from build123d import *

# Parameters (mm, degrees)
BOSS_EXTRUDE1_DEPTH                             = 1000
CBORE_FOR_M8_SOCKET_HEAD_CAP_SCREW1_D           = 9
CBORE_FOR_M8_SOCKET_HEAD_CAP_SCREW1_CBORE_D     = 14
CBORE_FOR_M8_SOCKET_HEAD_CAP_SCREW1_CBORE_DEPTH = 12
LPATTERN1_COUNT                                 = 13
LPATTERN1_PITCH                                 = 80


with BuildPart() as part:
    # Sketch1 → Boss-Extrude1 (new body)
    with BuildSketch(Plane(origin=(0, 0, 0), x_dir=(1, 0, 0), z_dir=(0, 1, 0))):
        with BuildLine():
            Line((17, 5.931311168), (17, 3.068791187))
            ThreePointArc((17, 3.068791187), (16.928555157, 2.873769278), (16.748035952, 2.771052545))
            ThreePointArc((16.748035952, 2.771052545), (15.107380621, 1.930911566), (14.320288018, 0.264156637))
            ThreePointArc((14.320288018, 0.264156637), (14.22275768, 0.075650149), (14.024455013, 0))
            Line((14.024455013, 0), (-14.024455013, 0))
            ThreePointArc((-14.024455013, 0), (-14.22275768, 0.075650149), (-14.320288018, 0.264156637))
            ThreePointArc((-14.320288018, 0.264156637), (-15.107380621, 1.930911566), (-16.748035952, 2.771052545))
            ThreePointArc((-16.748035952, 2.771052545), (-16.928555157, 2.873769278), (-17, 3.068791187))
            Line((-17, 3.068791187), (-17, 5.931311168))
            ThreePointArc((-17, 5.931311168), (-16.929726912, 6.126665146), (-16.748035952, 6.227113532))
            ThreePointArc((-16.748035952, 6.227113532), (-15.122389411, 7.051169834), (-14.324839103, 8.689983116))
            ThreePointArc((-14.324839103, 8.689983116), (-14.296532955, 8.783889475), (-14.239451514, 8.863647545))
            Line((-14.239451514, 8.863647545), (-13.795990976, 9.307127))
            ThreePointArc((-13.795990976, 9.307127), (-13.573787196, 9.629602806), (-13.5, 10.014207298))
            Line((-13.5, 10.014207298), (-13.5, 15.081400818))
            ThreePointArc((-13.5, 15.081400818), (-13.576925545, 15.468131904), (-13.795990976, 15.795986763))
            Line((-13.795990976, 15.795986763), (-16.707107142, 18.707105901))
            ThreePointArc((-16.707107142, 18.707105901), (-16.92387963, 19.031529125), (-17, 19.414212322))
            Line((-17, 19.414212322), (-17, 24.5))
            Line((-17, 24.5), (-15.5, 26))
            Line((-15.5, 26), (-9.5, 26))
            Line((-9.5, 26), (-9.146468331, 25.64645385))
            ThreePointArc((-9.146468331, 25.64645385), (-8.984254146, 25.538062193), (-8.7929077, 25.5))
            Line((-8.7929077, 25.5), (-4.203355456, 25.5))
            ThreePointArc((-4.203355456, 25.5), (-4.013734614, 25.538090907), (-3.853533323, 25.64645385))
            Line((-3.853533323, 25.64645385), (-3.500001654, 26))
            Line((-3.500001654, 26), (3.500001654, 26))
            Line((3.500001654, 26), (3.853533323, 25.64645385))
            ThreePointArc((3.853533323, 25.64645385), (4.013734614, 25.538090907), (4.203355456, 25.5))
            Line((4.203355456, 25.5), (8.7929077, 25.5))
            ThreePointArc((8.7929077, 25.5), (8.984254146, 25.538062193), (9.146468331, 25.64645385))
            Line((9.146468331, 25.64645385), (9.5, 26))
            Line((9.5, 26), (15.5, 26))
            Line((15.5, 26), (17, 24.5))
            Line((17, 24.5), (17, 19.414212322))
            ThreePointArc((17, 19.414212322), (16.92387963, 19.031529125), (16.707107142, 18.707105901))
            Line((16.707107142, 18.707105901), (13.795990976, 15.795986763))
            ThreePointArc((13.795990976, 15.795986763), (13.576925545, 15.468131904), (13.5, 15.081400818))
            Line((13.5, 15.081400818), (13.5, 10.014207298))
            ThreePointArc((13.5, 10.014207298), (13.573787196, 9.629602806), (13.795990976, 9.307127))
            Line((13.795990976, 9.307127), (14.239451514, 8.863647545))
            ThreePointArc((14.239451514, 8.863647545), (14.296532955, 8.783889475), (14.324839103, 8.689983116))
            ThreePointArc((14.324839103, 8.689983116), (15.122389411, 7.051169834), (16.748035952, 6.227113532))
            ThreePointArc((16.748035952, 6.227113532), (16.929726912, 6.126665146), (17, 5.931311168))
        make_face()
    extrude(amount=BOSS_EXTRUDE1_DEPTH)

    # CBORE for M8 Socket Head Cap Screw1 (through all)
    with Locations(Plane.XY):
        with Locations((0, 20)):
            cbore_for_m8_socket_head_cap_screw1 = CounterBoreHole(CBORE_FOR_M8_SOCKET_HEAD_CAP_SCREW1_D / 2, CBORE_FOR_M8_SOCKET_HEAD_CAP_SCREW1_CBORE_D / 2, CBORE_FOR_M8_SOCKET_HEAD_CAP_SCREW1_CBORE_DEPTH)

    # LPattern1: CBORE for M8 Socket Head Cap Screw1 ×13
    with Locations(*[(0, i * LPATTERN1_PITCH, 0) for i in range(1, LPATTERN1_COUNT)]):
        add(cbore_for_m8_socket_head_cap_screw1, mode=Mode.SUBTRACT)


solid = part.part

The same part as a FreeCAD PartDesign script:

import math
import FreeCAD as App
import Part
import Sketcher

V = App.Vector
Q = App.Units.Quantity

doc = App.newDocument("Part")
body = doc.addObject("PartDesign::Body", "Body")

sketch1 = body.newObject("Sketcher::SketchObject", "Sketch")
sketch1.AttachmentSupport = (doc.getObject("XZ_Plane"), [""])
sketch1.MapMode = "FlatFace"
sketch1.addGeometry(Part.LineSegment(V(17, -3.068791, 0), V(17, -5.931311, 0)), False)
sketch1.addGeometry(Part.ArcOfCircle(Part.Circle(V(16.705542, -5.935704, 0), V(0, 0, 1), 0.294491), math.radians(-81.703405), math.radians(0.854782)), False)
sketch1.addGeometry(Part.ArcOfCircle(Part.Circle(V(17.16064, -9.056587, 0), V(0, 0, 1), 2.859399), math.radians(98.296595), math.radians(172.633818)), False)
sketch1.addGeometry(Part.ArcOfCircle(Part.Circle(V(14.027315, -8.65152, 0), V(0, 0, 1), 0.3), math.radians(-44.998765), math.radians(-7.36622)), False)
sketch1.addGeometry(Part.LineSegment(V(14.239452, -8.863648, 0), V(13.795991, -9.307127, 0)), False)
sketch1.addGeometry(Part.ArcOfCircle(Part.Circle(V(14.453052, -9.997672, 0), V(0, 0, 1), 0.953196), math.radians(133.576671), math.radians(180.99397)), False)
sketch1.addGeometry(Part.LineSegment(V(13.5, -10.014207, 0), V(13.5, -15.081401, 0)), False)
sketch1.addGeometry(Part.ArcOfCircle(Part.Circle(V(14.510578, -15.081401, 0), V(0, 0, 1), 1.010578), math.radians(-180), math.radians(-135.000029)), False)
sketch1.addGeometry(Part.LineSegment(V(13.795991, -15.795987, 0), V(16.707107, -18.707106, 0)), False)
sketch1.addGeometry(Part.ArcOfCircle(Part.Circle(V(16, -19.414212, 0), V(0, 0, 1), 1), math.radians(0), math.radians(44.999971)), False)
sketch1.addGeometry(Part.LineSegment(V(17, -19.414212, 0), V(17, -24.5, 0)), False)
sketch1.addGeometry(Part.LineSegment(V(17, -24.5, 0), V(15.5, -26, 0)), False)
sketch1.addGeometry(Part.LineSegment(V(15.5, -26, 0), V(9.5, -26, 0)), False)
sketch1.addGeometry(Part.LineSegment(V(9.5, -26, 0), V(9.146468, -25.646454, 0)), False)
sketch1.addGeometry(Part.ArcOfCircle(Part.Circle(V(8.792908, -26, 0), V(0, 0, 1), 0.5), math.radians(44.998827), math.radians(90)), False)
sketch1.addGeometry(Part.LineSegment(V(8.792908, -25.5, 0), V(4.203355, -25.5, 0)), False)
sketch1.addGeometry(Part.ArcOfCircle(Part.Circle(V(4.203355, -25.991022, 0), V(0, 0, 1), 0.491022), math.radians(90), math.radians(135.433474)), False)
sketch1.addGeometry(Part.LineSegment(V(3.853533, -25.646454, 0), V(3.500002, -26, 0)), False)
sketch1.addGeometry(Part.LineSegment(V(3.500002, -26, 0), V(-3.500002, -26, 0)), False)
sketch1.addGeometry(Part.LineSegment(V(-3.500002, -26, 0), V(-3.853533, -25.646454, 0)), False)
sketch1.addGeometry(Part.ArcOfCircle(Part.Circle(V(-4.203355, -25.991022, 0), V(0, 0, 1), 0.491022), math.radians(44.566526), math.radians(90)), False)
sketch1.addGeometry(Part.LineSegment(V(-4.203355, -25.5, 0), V(-8.792908, -25.5, 0)), False)
sketch1.addGeometry(Part.ArcOfCircle(Part.Circle(V(-8.792908, -26, 0), V(0, 0, 1), 0.5), math.radians(90), math.radians(135.001173)), False)
sketch1.addGeometry(Part.LineSegment(V(-9.146468, -25.646454, 0), V(-9.5, -26, 0)), False)
sketch1.addGeometry(Part.LineSegment(V(-9.5, -26, 0), V(-15.5, -26, 0)), False)
sketch1.addGeometry(Part.LineSegment(V(-15.5, -26, 0), V(-17, -24.5, 0)), False)
sketch1.addGeometry(Part.LineSegment(V(-17, -24.5, 0), V(-17, -19.414212, 0)), False)
sketch1.addGeometry(Part.ArcOfCircle(Part.Circle(V(-16, -19.414212, 0), V(0, 0, 1), 1), math.radians(135.000029), math.radians(180)), False)
sketch1.addGeometry(Part.LineSegment(V(-16.707107, -18.707106, 0), V(-13.795991, -15.795987, 0)), False)
sketch1.addGeometry(Part.ArcOfCircle(Part.Circle(V(-14.510578, -15.081401, 0), V(0, 0, 1), 1.010578), math.radians(-44.999971), math.radians(0)), False)
sketch1.addGeometry(Part.LineSegment(V(-13.5, -15.081401, 0), V(-13.5, -10.014207, 0)), False)
sketch1.addGeometry(Part.ArcOfCircle(Part.Circle(V(-14.453052, -9.997672, 0), V(0, 0, 1), 0.953196), math.radians(-0.99397), math.radians(46.423329)), False)
sketch1.addGeometry(Part.LineSegment(V(-13.795991, -9.307127, 0), V(-14.239452, -8.863648, 0)), False)
sketch1.addGeometry(Part.ArcOfCircle(Part.Circle(V(-14.027315, -8.65152, 0), V(0, 0, 1), 0.3), math.radians(-172.63378), math.radians(-135.001235)), False)
sketch1.addGeometry(Part.ArcOfCircle(Part.Circle(V(-17.16064, -9.056587, 0), V(0, 0, 1), 2.859399), math.radians(7.366182), math.radians(81.703405)), False)
sketch1.addGeometry(Part.ArcOfCircle(Part.Circle(V(-16.705542, -5.935704, 0), V(0, 0, 1), 0.294491), math.radians(179.145218), math.radians(261.703405)), False)
sketch1.addGeometry(Part.LineSegment(V(-17, -5.931311, 0), V(-17, -3.068791, 0)), False)
sketch1.addGeometry(Part.ArcOfCircle(Part.Circle(V(-16.698103, -3.068791, 0), V(0, 0, 1), 0.301897), math.radians(99.520252), math.radians(180)), False)
sketch1.addGeometry(Part.ArcOfCircle(Part.Circle(V(-17.161447, 0.058303, 0), V(0, 0, 1), 2.859399), math.radians(-81.687068), math.radians(-6.475128)), False)
sketch1.addGeometry(Part.ArcOfCircle(Part.Circle(V(-14.024455, -0.297733, 0), V(0, 0, 1), 0.297733), math.radians(90.000071), math.radians(173.524844)), False)
sketch1.addGeometry(Part.LineSegment(V(-14.024455, 0, 0), V(14.024455, 0, 0)), False)
sketch1.addGeometry(Part.ArcOfCircle(Part.Circle(V(14.024455, -0.297733, 0), V(0, 0, 1), 0.297733), math.radians(6.475156), math.radians(89.999929)), False)
sketch1.addGeometry(Part.ArcOfCircle(Part.Circle(V(17.161447, 0.058303, 0), V(0, 0, 1), 2.859399), math.radians(-173.524872), math.radians(-98.312932)), False)
sketch1.addGeometry(Part.ArcOfCircle(Part.Circle(V(16.698103, -3.068791, 0), V(0, 0, 1), 0.301897), math.radians(0), math.radians(80.479748)), False)
sketch1.addConstraint(Sketcher.Constraint("Coincident", 0, 2, 1, 2))
sketch1.addConstraint(Sketcher.Constraint("Tangent", 1, 1, 2, 1))
sketch1.addConstraint(Sketcher.Constraint("Tangent", 2, 2, 3, 2))
sketch1.addConstraint(Sketcher.Constraint("Tangent", 3, 1, 4, 1))
sketch1.addConstraint(Sketcher.Constraint("Coincident", 4, 2, 5, 1))
sketch1.addConstraint(Sketcher.Constraint("Coincident", 5, 2, 6, 1))
sketch1.addConstraint(Sketcher.Constraint("Tangent", 6, 2, 7, 1))
sketch1.addConstraint(Sketcher.Constraint("Tangent", 7, 2, 8, 1))
sketch1.addConstraint(Sketcher.Constraint("Tangent", 8, 2, 9, 2))
sketch1.addConstraint(Sketcher.Constraint("Tangent", 9, 1, 10, 1))
sketch1.addConstraint(Sketcher.Constraint("Coincident", 10, 2, 11, 1))
sketch1.addConstraint(Sketcher.Constraint("Coincident", 11, 2, 12, 1))
sketch1.addConstraint(Sketcher.Constraint("Coincident", 12, 2, 13, 1))
sketch1.addConstraint(Sketcher.Constraint("Tangent", 13, 2, 14, 1))
sketch1.addConstraint(Sketcher.Constraint("Tangent", 14, 2, 15, 1))
sketch1.addConstraint(Sketcher.Constraint("Tangent", 15, 2, 16, 1))
sketch1.addConstraint(Sketcher.Constraint("Coincident", 16, 2, 17, 1))
sketch1.addConstraint(Sketcher.Constraint("Coincident", 17, 2, 18, 1))
sketch1.addConstraint(Sketcher.Constraint("Coincident", 18, 2, 19, 1))
sketch1.addConstraint(Sketcher.Constraint("Coincident", 19, 2, 20, 1))
sketch1.addConstraint(Sketcher.Constraint("Tangent", 20, 2, 21, 1))
sketch1.addConstraint(Sketcher.Constraint("Tangent", 21, 2, 22, 1))
sketch1.addConstraint(Sketcher.Constraint("Tangent", 22, 2, 23, 1))
sketch1.addConstraint(Sketcher.Constraint("Coincident", 23, 2, 24, 1))
sketch1.addConstraint(Sketcher.Constraint("Coincident", 24, 2, 25, 1))
sketch1.addConstraint(Sketcher.Constraint("Coincident", 25, 2, 26, 1))
sketch1.addConstraint(Sketcher.Constraint("Tangent", 26, 2, 27, 2))
sketch1.addConstraint(Sketcher.Constraint("Tangent", 27, 1, 28, 1))
sketch1.addConstraint(Sketcher.Constraint("Tangent", 28, 2, 29, 1))
sketch1.addConstraint(Sketcher.Constraint("Tangent", 29, 2, 30, 1))
sketch1.addConstraint(Sketcher.Constraint("Coincident", 30, 2, 31, 1))
sketch1.addConstraint(Sketcher.Constraint("Coincident", 31, 2, 32, 1))
sketch1.addConstraint(Sketcher.Constraint("Tangent", 32, 2, 33, 2))
sketch1.addConstraint(Sketcher.Constraint("Tangent", 33, 1, 34, 1))
sketch1.addConstraint(Sketcher.Constraint("Tangent", 34, 2, 35, 2))
sketch1.addConstraint(Sketcher.Constraint("Coincident", 35, 1, 36, 1))
sketch1.addConstraint(Sketcher.Constraint("Tangent", 36, 2, 37, 2))
sketch1.addConstraint(Sketcher.Constraint("Coincident", 37, 1, 38, 1))
sketch1.addConstraint(Sketcher.Constraint("Tangent", 38, 2, 39, 2))
sketch1.addConstraint(Sketcher.Constraint("Tangent", 39, 1, 40, 1))
sketch1.addConstraint(Sketcher.Constraint("Tangent", 40, 2, 41, 2))
sketch1.addConstraint(Sketcher.Constraint("Tangent", 41, 1, 42, 1))
sketch1.addConstraint(Sketcher.Constraint("Coincident", 42, 2, 43, 2))
sketch1.addConstraint(Sketcher.Constraint("Tangent", 43, 1, 0, 1))
sketch1.addConstraint(Sketcher.Constraint("Vertical", 0))
sketch1.addConstraint(Sketcher.Constraint("Vertical", 6))
sketch1.addConstraint(Sketcher.Constraint("Vertical", 10))
sketch1.addConstraint(Sketcher.Constraint("Horizontal", 12))
sketch1.addConstraint(Sketcher.Constraint("Horizontal", 15))
sketch1.addConstraint(Sketcher.Constraint("Horizontal", 18))
sketch1.addConstraint(Sketcher.Constraint("Horizontal", 21))
sketch1.addConstraint(Sketcher.Constraint("Horizontal", 24))
sketch1.addConstraint(Sketcher.Constraint("Vertical", 26))
sketch1.addConstraint(Sketcher.Constraint("Vertical", 30))
sketch1.addConstraint(Sketcher.Constraint("Vertical", 36))
sketch1.addConstraint(Sketcher.Constraint("Horizontal", 40))
sketch1.addConstraint(Sketcher.Constraint("Equal", 16, 20))
sketch1.addConstraint(Sketcher.Constraint("Equal", 14, 22))
sketch1.addConstraint(Sketcher.Constraint("Equal", 9, 27))
sketch1.addConstraint(Sketcher.Constraint("Equal", 7, 29))
sketch1.addConstraint(Sketcher.Constraint("Equal", 5, 31))
sketch1.addConstraint(Sketcher.Constraint("Equal", 3, 33))
sketch1.addConstraint(Sketcher.Constraint("Equal", 2, 34))
sketch1.addConstraint(Sketcher.Constraint("Equal", 1, 35))
sketch1.addConstraint(Sketcher.Constraint("Equal", 34, 38))
sketch1.addConstraint(Sketcher.Constraint("Equal", 39, 41))
sketch1.addConstraint(Sketcher.Constraint("Equal", 38, 42))
sketch1.addConstraint(Sketcher.Constraint("Equal", 37, 43))
sketch1.addConstraint(Sketcher.Constraint("Symmetric", 39, 1, 40, 2, -1, 1))
sketch1.addConstraint(Sketcher.Constraint("Symmetric", 16, 3, 20, 3, -2))
sketch1.addConstraint(Sketcher.Constraint("Symmetric", 9, 3, 27, 3, -2))
sketch1.addConstraint(Sketcher.Constraint("Symmetric", 7, 3, 29, 3, -2))
sketch1.addConstraint(Sketcher.Constraint("Symmetric", 5, 3, 31, 3, -2))
sketch1.addConstraint(Sketcher.Constraint("Symmetric", 3, 3, 33, 3, -2))
sketch1.addConstraint(Sketcher.Constraint("Symmetric", 1, 3, 35, 3, -2))
sketch1.addConstraint(Sketcher.Constraint("Symmetric", 37, 3, 43, 3, -2))
sketch1.addConstraint(Sketcher.Constraint("Symmetric", 13, 2, 22, 2, -2))
sketch1.addConstraint(Sketcher.Constraint("Symmetric", 11, 2, 24, 2, -2))
sketch1.addConstraint(Sketcher.Constraint("Perpendicular", 8, 11))
sketch1.addConstraint(Sketcher.Constraint("Parallel", 4, 17))
sketch1.addConstraint(Sketcher.Constraint("Parallel", 13, 19))
sketch1.addConstraint(Sketcher.Constraint("Parallel", 17, 23))
sketch1.addConstraint(Sketcher.Constraint("Perpendicular", 11, 25))
sketch1.addConstraint(Sketcher.Constraint("Perpendicular", 25, 28))
sketch1.addConstraint(Sketcher.Constraint("Parallel", 19, 32))
sketch1.addConstraint(Sketcher.Constraint("Horizontal", 38, 3, 42, 3))
sketch1.addConstraint(Sketcher.Constraint("Horizontal", 22, 3, 11, 2))
sketch1.addConstraint(Sketcher.Constraint("Horizontal", 13, 2, 16, 2))
sketch1.addConstraint(Sketcher.Constraint("Horizontal", 12, 2, 17, 2))
sketch1.addConstraint(Sketcher.Constraint("Horizontal", 16, 2, 19, 2))
sketch1.addConstraint(Sketcher.Constraint("Vertical", 4, 2, 7, 2))
sketch1.addConstraint(Sketcher.Constraint("Vertical", 0, 2, 9, 1))
sketch1.addConstraint(Sketcher.Constraint("Vertical", 34, 2, 37, 1))
sketch1.addConstraint(Sketcher.Constraint("Radius", 9, Q("1 mm")))
sketch1.addConstraint(Sketcher.Constraint("Radius", 3, Q("0.3 mm")))
sketch1.addConstraint(Sketcher.Constraint("Radius", 14, Q("0.5 mm")))
sketch1.addConstraint(Sketcher.Constraint("DistanceX", 12, 2, 12, 1, Q("6 mm")))
sketch1.addConstraint(Sketcher.Constraint("DistanceX", -1, 1, 9, 3, Q("16 mm")))
sketch1.addConstraint(Sketcher.Constraint("DistanceY", 14, 3, -1, 1, Q("26 mm")))
sketch1.addConstraint(Sketcher.Constraint("DistanceX", -1, 1, 5, 2, Q("13.5 mm")))
sketch1.addConstraint(Sketcher.Constraint("DistanceY", 10, 2, -1, 1, Q("24.5 mm")))
sketch1.addConstraint(Sketcher.Constraint("DistanceX", -1, 1, 17, 2, Q("3.500002 mm")))
sketch1.addConstraint(Sketcher.Constraint("Radius", 2, Q("2.859399 mm")))
sketch1.addConstraint(Sketcher.Constraint("Radius", 1, Q("0.294491 mm")))
sketch1.addConstraint(Sketcher.Constraint("Radius", 5, Q("0.953196 mm")))
sketch1.addConstraint(Sketcher.Constraint("Radius", 7, Q("1.010578 mm")))
sketch1.addConstraint(Sketcher.Constraint("Radius", 16, Q("0.491022 mm")))
sketch1.addConstraint(Sketcher.Constraint("Radius", 37, Q("0.301897 mm")))
sketch1.addConstraint(Sketcher.Constraint("Radius", 39, Q("0.297733 mm")))
sketch1.addConstraint(Sketcher.Constraint("DistanceX", 40, 1, 40, 2, Q("28.04891 mm")))
sketch1.addConstraint(Sketcher.Constraint("DistanceY", 0, 2, 0, 1, Q("2.86252 mm")))
sketch1.addConstraint(Sketcher.Constraint("DistanceY", 7, 3, -1, 1, Q("15.081401 mm")))
sketch1.addConstraint(Sketcher.Constraint("Distance", 4, Q("0.627161 mm")))
sketch1.addConstraint(Sketcher.Constraint("Distance", 13, Q("0.49998 mm")))
sketch1.addConstraint(Sketcher.Constraint("DistanceY", 6, 2, 6, 1, Q("5.067194 mm")))
sketch1.addConstraint(Sketcher.Constraint("DistanceX", -1, 1, 1, 3, Q("16.705542 mm")))
sketch1.addConstraint(Sketcher.Constraint("DistanceX", -1, 1, 2, 3, Q("17.16064 mm")))
sketch1.addConstraint(Sketcher.Constraint("DistanceY", 3, 3, -1, 1, Q("8.65152 mm")))
pad1 = body.newObject("PartDesign::Pad", "Pad")
pad1.Profile = sketch1
pad1.Length = 1000
pad1.Reversed = True

sketch2 = body.newObject("Sketcher::SketchObject", "Sketch001")
sketch2.AttachmentSupport = (doc.getObject("XY_Plane"), [""])
sketch2.MapMode = "FlatFace"
sketch2.addGeometry(Part.Circle(V(0, 20, 0), V(0, 0, 1), 4.5), False)
sketch2.addConstraint(Sketcher.Constraint("PointOnObject", 0, 3, -2))
sketch2.addConstraint(Sketcher.Constraint("Diameter", 0, Q("9 mm")))
sketch2.addConstraint(Sketcher.Constraint("DistanceY", -1, 1, 0, 3, Q("20 mm")))
doc.recompute()
hole = body.newObject("PartDesign::Hole", "Hole")
hole.Profile = sketch2
hole.ThreadType = "None"
hole.Diameter = 9
hole.DepthType = "ThroughAll"
hole.HoleCutType = "Counterbore"
hole.HoleCutDiameter = 14
hole.HoleCutDepth = 12
doc.recompute()

linearpattern = body.newObject("PartDesign::LinearPattern", "LinearPattern")
linearpattern.Originals = [hole]
linearpattern.Direction = (doc.getObject("Y_Axis"), [""])
linearpattern.Mode = "offset"
linearpattern.Offset = 80
linearpattern.Occurrences = 13
body.Tip = linearpattern

doc.recompute()
